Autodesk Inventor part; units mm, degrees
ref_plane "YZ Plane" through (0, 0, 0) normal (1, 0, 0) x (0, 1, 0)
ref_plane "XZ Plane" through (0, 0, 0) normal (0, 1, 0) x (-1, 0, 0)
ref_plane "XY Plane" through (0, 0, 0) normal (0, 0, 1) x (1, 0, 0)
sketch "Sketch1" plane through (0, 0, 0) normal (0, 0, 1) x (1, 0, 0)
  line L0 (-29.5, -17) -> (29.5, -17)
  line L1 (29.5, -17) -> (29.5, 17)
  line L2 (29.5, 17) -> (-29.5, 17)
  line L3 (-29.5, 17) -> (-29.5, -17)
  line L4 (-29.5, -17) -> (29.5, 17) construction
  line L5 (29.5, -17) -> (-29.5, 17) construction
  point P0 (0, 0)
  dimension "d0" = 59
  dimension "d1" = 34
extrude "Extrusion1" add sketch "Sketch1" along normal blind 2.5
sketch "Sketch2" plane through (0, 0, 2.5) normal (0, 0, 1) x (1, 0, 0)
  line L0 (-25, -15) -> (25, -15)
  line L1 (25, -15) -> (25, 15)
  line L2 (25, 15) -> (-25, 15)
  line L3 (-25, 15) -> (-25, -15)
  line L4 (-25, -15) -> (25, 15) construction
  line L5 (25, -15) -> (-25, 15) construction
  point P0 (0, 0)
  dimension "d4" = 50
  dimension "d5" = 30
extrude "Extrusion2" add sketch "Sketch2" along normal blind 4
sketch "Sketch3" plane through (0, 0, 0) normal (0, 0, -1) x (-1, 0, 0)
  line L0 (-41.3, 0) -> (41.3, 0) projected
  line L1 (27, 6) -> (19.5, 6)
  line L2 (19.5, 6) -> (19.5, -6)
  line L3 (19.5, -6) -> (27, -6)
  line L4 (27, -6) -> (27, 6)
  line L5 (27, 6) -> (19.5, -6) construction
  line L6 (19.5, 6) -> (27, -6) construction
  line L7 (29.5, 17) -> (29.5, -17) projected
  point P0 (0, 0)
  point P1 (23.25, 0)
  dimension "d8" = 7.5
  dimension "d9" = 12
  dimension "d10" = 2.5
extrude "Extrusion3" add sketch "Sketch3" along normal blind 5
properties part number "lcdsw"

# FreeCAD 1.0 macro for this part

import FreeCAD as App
import Part
import Sketcher
from FreeCAD import Vector


def add_polygon(sketch, points):
    """Adds a closed chain of lines whose ends are joined by coincident constraints."""
    first, n = sketch.GeometryCount, len(points)
    for a, b in zip(points, points[1:] + points[:1]):
        sketch.addGeometry(Part.LineSegment(App.Vector(*a, 0), App.Vector(*b, 0)), False)
    for i in range(n):
        sketch.addConstraint(Sketcher.Constraint("Coincident", first + i, 2, first + (i + 1) % n, 1))

doc = App.newDocument("Part")
body = doc.addObject("PartDesign::Body", "Body")

# Sketch on XY plane
sketch1 = body.newObject("Sketcher::SketchObject", "Sketch")
sketch1.AttachmentSupport = (doc.getObject("XY_Plane"), [""])
sketch1.MapMode = "FlatFace"
add_polygon(sketch1, [(-29.5, 17), (-29.5, -17), (29.5, -17), (29.5, 17)])  # lines 0-3
sketch1.addConstraint([
    Sketcher.Constraint("Vertical", 0),
    Sketcher.Constraint("Horizontal", 1),
    Sketcher.Constraint("Vertical", 2),
    Sketcher.Constraint("Horizontal", 3),
    Sketcher.Constraint("Symmetric", 0, 2, 2, 2, -1, 1),
    Sketcher.Constraint("DistanceX", 1, 1, 1, 2, 59.0),
    Sketcher.Constraint("DistanceY", 0, 2, 0, 1, 34.0),
])
pad1 = body.newObject("PartDesign::Pad", "Pad")
pad1.Profile = sketch1
pad1.Length = 2.5

# Sketch on XY plane
sketch2 = body.newObject("Sketcher::SketchObject", "Sketch001")
sketch2.AttachmentSupport = (doc.getObject("XY_Plane"), [""])
sketch2.MapMode = "FlatFace"
sketch2.AttachmentOffset = App.Placement(Vector(0, 0, 2.5), App.Rotation())
add_polygon(sketch2, [(-25, 15), (-25, -15), (25, -15), (25, 15)])  # lines 0-3
sketch2.addConstraint([
    Sketcher.Constraint("Vertical", 0),
    Sketcher.Constraint("Horizontal", 1),
    Sketcher.Constraint("Vertical", 2),
    Sketcher.Constraint("Horizontal", 3),
    Sketcher.Constraint("Symmetric", 0, 2, 2, 2, -1, 1),
    Sketcher.Constraint("DistanceX", 1, 1, 1, 2, 50.0),
    Sketcher.Constraint("DistanceY", 0, 2, 0, 1, 30.0),
])
pad2 = body.newObject("PartDesign::Pad", "Pad001")
pad2.Profile = sketch2
pad2.Length = 4

# Sketch on XY plane
sketch3 = body.newObject("Sketcher::SketchObject", "Sketch002")
sketch3.AttachmentSupport = (doc.getObject("XY_Plane"), [""])
sketch3.MapMode = "FlatFace"
add_polygon(sketch3, [(-19.5, 6), (-19.5, -6), (-27, -6), (-27, 6)])  # lines 0-3
sketch3.addConstraint([
    Sketcher.Constraint("Vertical", 0),
    Sketcher.Constraint("Horizontal", 1),
    Sketcher.Constraint("Vertical", 2),
    Sketcher.Constraint("Horizontal", 3),
    Sketcher.Constraint("DistanceY", 0, 2, 0, 1, 12.0),
    Sketcher.Constraint("DistanceX", 1, 2, 1, 1, 7.5),
    Sketcher.Constraint("DistanceY", 0, 2, -1, 1, 6.0),
    Sketcher.Constraint("DistanceX", 1, 2, -1, 1, 27.0),
])
pad3 = body.newObject("PartDesign::Pad", "Pad002")
pad3.Profile = sketch3
pad3.Length = 5
pad3.Reversed = True

doc.recompute()
